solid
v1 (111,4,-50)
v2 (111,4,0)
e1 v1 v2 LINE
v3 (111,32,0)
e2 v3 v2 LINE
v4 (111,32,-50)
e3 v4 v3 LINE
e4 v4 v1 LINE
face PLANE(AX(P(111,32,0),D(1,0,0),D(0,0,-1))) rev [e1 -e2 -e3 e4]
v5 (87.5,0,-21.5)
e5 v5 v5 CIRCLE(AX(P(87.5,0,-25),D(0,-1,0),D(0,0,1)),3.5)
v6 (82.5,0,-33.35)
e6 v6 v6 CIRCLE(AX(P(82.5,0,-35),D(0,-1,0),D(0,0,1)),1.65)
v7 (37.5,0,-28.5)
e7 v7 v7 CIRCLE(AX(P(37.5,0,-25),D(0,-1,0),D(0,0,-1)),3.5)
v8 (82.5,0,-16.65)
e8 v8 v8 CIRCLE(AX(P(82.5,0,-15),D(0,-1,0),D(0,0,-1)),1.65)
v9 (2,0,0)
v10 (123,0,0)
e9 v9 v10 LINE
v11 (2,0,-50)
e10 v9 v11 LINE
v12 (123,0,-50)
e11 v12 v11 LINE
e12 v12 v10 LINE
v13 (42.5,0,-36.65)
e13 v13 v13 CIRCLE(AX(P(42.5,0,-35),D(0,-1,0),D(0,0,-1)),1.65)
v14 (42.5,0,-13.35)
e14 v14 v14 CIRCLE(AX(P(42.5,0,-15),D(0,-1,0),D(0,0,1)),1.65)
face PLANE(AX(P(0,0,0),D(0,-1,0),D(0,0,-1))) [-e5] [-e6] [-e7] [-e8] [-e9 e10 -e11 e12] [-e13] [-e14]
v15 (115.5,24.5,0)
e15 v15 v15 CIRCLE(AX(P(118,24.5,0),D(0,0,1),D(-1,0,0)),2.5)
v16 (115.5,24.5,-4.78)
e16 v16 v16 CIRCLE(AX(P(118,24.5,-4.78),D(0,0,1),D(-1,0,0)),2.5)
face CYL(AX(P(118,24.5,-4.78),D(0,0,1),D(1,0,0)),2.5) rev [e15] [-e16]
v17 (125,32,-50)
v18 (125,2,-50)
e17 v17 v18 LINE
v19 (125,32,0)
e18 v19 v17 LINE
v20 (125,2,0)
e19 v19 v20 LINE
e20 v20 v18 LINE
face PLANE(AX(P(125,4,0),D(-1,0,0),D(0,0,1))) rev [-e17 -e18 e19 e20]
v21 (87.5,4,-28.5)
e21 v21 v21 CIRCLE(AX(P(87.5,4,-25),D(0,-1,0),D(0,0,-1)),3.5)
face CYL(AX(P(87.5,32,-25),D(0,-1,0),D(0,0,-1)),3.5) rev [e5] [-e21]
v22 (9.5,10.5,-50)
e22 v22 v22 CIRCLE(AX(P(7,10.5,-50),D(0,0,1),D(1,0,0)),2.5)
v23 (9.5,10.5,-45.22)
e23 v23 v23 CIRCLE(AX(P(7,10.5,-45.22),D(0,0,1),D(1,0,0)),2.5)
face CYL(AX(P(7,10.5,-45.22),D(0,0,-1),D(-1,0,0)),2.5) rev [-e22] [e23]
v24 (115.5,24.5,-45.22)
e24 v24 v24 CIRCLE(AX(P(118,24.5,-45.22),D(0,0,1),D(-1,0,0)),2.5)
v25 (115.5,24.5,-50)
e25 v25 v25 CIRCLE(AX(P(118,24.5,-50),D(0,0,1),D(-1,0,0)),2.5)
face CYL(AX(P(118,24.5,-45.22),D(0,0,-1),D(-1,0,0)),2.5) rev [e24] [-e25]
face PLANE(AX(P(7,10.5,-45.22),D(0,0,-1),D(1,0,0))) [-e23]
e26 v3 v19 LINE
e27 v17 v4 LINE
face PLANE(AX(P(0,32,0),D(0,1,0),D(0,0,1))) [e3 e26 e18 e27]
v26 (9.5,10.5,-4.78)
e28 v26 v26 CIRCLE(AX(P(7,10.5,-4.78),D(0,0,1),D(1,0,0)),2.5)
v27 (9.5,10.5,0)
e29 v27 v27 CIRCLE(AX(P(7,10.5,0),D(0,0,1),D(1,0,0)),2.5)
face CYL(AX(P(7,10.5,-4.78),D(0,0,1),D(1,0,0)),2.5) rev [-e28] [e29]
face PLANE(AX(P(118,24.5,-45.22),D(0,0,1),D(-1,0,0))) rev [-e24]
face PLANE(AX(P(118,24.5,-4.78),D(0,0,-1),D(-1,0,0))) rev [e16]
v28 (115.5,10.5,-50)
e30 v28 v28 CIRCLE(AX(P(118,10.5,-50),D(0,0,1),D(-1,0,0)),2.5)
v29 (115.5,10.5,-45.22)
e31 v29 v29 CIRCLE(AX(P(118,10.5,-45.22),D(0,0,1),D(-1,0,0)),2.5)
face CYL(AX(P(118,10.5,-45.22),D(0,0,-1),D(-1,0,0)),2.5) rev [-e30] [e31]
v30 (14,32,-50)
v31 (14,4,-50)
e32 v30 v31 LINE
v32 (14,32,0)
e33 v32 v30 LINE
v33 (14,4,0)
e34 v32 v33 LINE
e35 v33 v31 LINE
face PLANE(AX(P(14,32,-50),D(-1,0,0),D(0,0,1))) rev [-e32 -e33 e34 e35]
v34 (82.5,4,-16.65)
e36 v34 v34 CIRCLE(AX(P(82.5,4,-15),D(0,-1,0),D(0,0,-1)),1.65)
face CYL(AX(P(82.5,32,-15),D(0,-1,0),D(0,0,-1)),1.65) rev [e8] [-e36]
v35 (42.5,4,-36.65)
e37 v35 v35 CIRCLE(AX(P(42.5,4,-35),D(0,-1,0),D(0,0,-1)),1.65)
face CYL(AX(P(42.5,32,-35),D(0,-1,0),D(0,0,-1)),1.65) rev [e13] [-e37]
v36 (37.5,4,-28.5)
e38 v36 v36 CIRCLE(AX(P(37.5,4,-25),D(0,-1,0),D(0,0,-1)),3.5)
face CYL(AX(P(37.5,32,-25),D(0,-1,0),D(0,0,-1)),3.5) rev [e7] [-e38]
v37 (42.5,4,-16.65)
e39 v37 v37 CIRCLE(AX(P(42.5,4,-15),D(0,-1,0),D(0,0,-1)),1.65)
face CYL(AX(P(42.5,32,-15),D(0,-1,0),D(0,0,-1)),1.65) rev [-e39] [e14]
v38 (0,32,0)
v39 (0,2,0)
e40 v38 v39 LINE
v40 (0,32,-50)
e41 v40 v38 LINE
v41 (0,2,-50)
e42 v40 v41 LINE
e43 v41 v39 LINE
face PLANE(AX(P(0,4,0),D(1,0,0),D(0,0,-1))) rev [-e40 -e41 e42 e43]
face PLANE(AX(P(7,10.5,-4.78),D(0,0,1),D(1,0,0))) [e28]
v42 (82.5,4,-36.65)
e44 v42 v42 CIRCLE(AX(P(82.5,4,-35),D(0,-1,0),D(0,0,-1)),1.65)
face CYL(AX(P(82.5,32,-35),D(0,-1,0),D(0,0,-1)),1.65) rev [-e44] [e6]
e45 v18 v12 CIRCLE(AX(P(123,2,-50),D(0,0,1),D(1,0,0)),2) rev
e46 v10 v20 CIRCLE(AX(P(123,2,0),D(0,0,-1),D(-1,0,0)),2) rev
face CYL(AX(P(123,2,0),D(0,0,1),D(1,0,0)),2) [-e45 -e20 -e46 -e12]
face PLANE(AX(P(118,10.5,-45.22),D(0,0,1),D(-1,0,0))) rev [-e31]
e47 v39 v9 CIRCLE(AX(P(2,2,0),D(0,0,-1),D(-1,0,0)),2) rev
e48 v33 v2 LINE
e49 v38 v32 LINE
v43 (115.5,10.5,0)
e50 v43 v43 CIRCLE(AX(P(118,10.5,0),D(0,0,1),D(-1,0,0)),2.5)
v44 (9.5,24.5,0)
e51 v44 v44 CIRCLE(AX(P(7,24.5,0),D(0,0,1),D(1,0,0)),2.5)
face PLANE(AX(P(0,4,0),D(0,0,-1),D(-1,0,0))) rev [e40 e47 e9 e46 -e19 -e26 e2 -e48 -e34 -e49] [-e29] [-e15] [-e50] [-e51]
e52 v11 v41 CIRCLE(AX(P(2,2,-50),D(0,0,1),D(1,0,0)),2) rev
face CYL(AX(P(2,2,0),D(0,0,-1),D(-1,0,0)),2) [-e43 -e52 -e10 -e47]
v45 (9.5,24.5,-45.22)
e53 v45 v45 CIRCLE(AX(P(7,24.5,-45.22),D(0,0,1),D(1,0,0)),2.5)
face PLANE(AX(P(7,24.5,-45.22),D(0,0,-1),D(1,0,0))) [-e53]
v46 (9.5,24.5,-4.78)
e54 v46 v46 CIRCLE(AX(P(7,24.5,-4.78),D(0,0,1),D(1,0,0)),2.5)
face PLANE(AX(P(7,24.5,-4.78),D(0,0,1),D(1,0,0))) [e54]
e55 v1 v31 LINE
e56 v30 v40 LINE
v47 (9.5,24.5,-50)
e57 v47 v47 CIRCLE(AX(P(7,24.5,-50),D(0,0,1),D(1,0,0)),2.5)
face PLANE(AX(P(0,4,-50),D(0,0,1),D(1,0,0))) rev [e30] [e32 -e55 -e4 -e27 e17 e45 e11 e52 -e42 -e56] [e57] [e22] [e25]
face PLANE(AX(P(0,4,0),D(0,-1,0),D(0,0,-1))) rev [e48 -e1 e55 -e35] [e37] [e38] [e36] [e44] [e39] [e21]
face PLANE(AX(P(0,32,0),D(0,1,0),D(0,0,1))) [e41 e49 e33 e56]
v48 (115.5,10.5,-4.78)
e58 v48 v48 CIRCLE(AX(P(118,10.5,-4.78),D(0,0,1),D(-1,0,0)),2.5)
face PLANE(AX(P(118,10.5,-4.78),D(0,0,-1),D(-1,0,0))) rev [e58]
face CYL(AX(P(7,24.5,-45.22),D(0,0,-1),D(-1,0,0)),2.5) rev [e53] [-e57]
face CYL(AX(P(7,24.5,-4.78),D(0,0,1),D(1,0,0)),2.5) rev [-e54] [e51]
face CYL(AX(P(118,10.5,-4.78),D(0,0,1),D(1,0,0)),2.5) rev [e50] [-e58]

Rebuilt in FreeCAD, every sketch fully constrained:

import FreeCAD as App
import Part
import Sketcher
from FreeCAD import Vector


def edges_at(feature, points):
    """Names of the edges that pass closest to the given points."""
    edges = feature.Shape.Edges
    near = lambda p: min(range(len(edges)), key=lambda i: edges[i].distToShape(Part.Vertex(*p))[0])
    return sorted({f"Edge{near(p) + 1}" for p in points})


def add_polygon(sketch, points):
    """Adds a closed chain of lines whose ends are joined by coincident constraints."""
    first, n = sketch.GeometryCount, len(points)
    for a, b in zip(points, points[1:] + points[:1]):
        sketch.addGeometry(Part.LineSegment(App.Vector(*a, 0), App.Vector(*b, 0)), False)
    for i in range(n):
        sketch.addConstraint(Sketcher.Constraint("Coincident", first + i, 2, first + (i + 1) % n, 1))

doc = App.newDocument("Part")
params = doc.addObject("Spreadsheet::Sheet", "Params")
for row, (alias, value) in enumerate([
    ("sketch1_width", "125 mm"),
    ("sketch1_height", "50 mm"),
    ("pad1_length", "4 mm"),
    ("sketch2_width", "14 mm"),
    ("sketch2_height", "50 mm"),
    ("pad2_length", "28 mm"),
    ("sketch3_diameter", "5 mm"),
    ("pocket1_length", "4.78 mm"),
    ("sketch4_diameter", "7 mm"),
    ("sketch4_diameter2", "3.3 mm"),
    ("fillet_radius", "2 mm"),
], start=1):
    params.set(f"A{row}", alias)
    params.set(f"B{row}", "=" + value)
    params.setAlias(f"B{row}", alias)

body = doc.addObject("PartDesign::Body", "Body")

# Sketch on XZ plane
sketch1 = doc.addObject("Sketcher::SketchObject", "Sketch")
body.addObject(sketch1)
sketch1.AttachmentSupport = (doc.XZ_Plane, [""])
sketch1.MapMode = "FlatFace"
add_polygon(sketch1, [(0, -50), (0, 0), (125, 0), (125, -50)])  # lines 0-3
sketch1.addConstraint([
    Sketcher.Constraint("Vertical", 0),
    Sketcher.Constraint("Horizontal", 1),
    Sketcher.Constraint("Vertical", 2),
    Sketcher.Constraint("Horizontal", 3),
    Sketcher.Constraint("Coincident", 0, 2, -1, 1),
    Sketcher.Constraint("DistanceX", 1, 1, 1, 2, 125.0),
    Sketcher.Constraint("DistanceY", 0, 1, 0, 2, 50.0),
])
sketch1.setExpression("Constraints[9]", "Params.sketch1_width")
sketch1.setExpression("Constraints[10]", "Params.sketch1_height")
pad1 = doc.addObject("PartDesign::Pad", "Pad")
body.addObject(pad1)
pad1.Profile = sketch1
pad1.setExpression("Length", "Params.pad1_length")
pad1.Reversed = True

# Sketch on XZ plane
sketch2 = doc.addObject("Sketcher::SketchObject", "Sketch001")
body.addObject(sketch2)
sketch2.AttachmentSupport = (doc.XZ_Plane, [""])
sketch2.MapMode = "FlatFace"
sketch2.AttachmentOffset = App.Placement(Vector(0, 0, -4), App.Rotation())
add_polygon(sketch2, [(0, -50), (0, 0), (14, 0), (14, -50)])  # lines 0-3
add_polygon(sketch2, [(111, -50), (111, 0), (125, 0), (125, -50)])  # lines 4-7
sketch2.addConstraint([
    Sketcher.Constraint("Vertical", 0),
    Sketcher.Constraint("Horizontal", 1),
    Sketcher.Constraint("Vertical", 2),
    Sketcher.Constraint("Horizontal", 3),
    Sketcher.Constraint("Vertical", 4),
    Sketcher.Constraint("Horizontal", 5),
    Sketcher.Constraint("Vertical", 6),
    Sketcher.Constraint("Horizontal", 7),
    Sketcher.Constraint("Coincident", 0, 2, -1, 1),
    Sketcher.Constraint("PointOnObject", 4, 2, -1),
    Sketcher.Constraint("Horizontal", 3, 2, 6, 2),
    Sketcher.Constraint("Equal", 3, 5),
    Sketcher.Constraint("DistanceX", 1, 1, 1, 2, 14.0),
    Sketcher.Constraint("DistanceY", 0, 1, 0, 2, 50.0),
    Sketcher.Constraint("DistanceX", -1, 1, 4, 2, 111.0),
])
sketch2.setExpression("Constraints[20]", "Params.sketch2_width")
sketch2.setExpression("Constraints[21]", "Params.sketch2_height")
pad2 = doc.addObject("PartDesign::Pad", "Pad001")
body.addObject(pad2)
pad2.Profile = sketch2
pad2.setExpression("Length", "Params.pad2_length")
pad2.Reversed = True

# Sketch on XY plane
sketch3 = doc.addObject("Sketcher::SketchObject", "Sketch002")
body.addObject(sketch3)
sketch3.AttachmentSupport = (doc.XY_Plane, [""])
sketch3.MapMode = "FlatFace"
sketch3.addGeometry([
    Part.Circle(Vector(7, 24.5, 0), Vector(0, 0, 1), 2.5),
    Part.Circle(Vector(7, 10.5, 0), Vector(0, 0, 1), 2.5),
    Part.Circle(Vector(118, 10.5, 0), Vector(0, 0, 1), 2.5),
    Part.Circle(Vector(118, 24.5, 0), Vector(0, 0, 1), 2.5),
], False)
sketch3.addConstraint([
    Sketcher.Constraint("Equal", 0, 1),
    Sketcher.Constraint("Equal", 1, 2),
    Sketcher.Constraint("Equal", 2, 3),
    Sketcher.Constraint("Horizontal", 1, 3, 2, 3),
    Sketcher.Constraint("Horizontal", 0, 3, 3, 3),
    Sketcher.Constraint("Vertical", 0, 3, 1, 3),
    Sketcher.Constraint("Vertical", 2, 3, 3, 3),
    Sketcher.Constraint("Diameter", 0, 5.0),
    Sketcher.Constraint("DistanceX", -1, 1, 0, 3, 7.0),
    Sketcher.Constraint("DistanceX", -1, 1, 2, 3, 118.0),
    Sketcher.Constraint("DistanceY", 1, 3, 0, 3, 14.0),
    Sketcher.Constraint("DistanceY", -1, 1, 0, 3, 24.5),
])
sketch3.setExpression("Constraints[7]", "Params.sketch3_diameter")
pocket1 = doc.addObject("PartDesign::Pocket", "Pocket")
body.addObject(pocket1)
pocket1.Profile = sketch3
pocket1.setExpression("Length", "Params.pocket1_length")
doc.recompute()

datumplane = doc.addObject("PartDesign::Plane", "DatumPlane")
body.addObject(datumplane)
datumplane.AttachmentSupport = (doc.XY_Plane, [""])
datumplane.MapMode = "FlatFace"
datumplane.AttachmentOffset = App.Placement(Vector(0, 0, -25), App.Rotation())
mirrored = doc.addObject("PartDesign::Mirrored", "Mirrored")
body.addObject(mirrored)
mirrored.Originals = [pocket1]
mirrored.MirrorPlane = (datumplane, [""])
body.Tip = mirrored

# Sketch on XZ plane
sketch4 = doc.addObject("Sketcher::SketchObject", "Sketch003")
body.addObject(sketch4)
sketch4.AttachmentSupport = (doc.XZ_Plane, [""])
sketch4.MapMode = "FlatFace"
sketch4.addGeometry([
    Part.Circle(Vector(82.5, -15, 0), Vector(0, 0, 1), 1.6),  # 0
    Part.Circle(Vector(42.5, -15, 0), Vector(0, 0, 1), 1.6),  # 1
    Part.Circle(Vector(82.5, -35, 0), Vector(0, 0, 1), 1.6),  # 2
    Part.Circle(Vector(42.5, -35, 0), Vector(0, 0, 1), 1.6),  # 3
    Part.Circle(Vector(37.5, -25, 0), Vector(0, 0, 1), 3.5),  # 4
    Part.Circle(Vector(87.5, -25, 0), Vector(0, 0, 1), 3.5),  # 5
], False)
sketch4.addConstraint([
    Sketcher.Constraint("Equal", 0, 1),
    Sketcher.Constraint("Equal", 1, 2),
    Sketcher.Constraint("Equal", 2, 3),
    Sketcher.Constraint("Equal", 4, 5),
    Sketcher.Constraint("Horizontal", 0, 3, 1, 3),
    Sketcher.Constraint("Horizontal", 2, 3, 3, 3),
    Sketcher.Constraint("Horizontal", 4, 3, 5, 3),
    Sketcher.Constraint("Vertical", 0, 3, 2, 3),
    Sketcher.Constraint("Vertical", 1, 3, 3, 3),
    Sketcher.Constraint("Diameter", 4, 7.0),
    Sketcher.Constraint("Diameter", 0, 3.3),
    Sketcher.Constraint("DistanceY", 0, 3, -1, 1, 15.0),
    Sketcher.Constraint("DistanceY", 2, 3, -1, 1, 35.0),
    Sketcher.Constraint("DistanceY", 4, 3, -1, 1, 25.0),
    Sketcher.Constraint("DistanceX", 1, 3, 0, 3, 40.0),
    Sketcher.Constraint("DistanceX", 4, 3, 1, 3, 5.0),
    Sketcher.Constraint("DistanceX", 0, 3, 5, 3, 5.0),
    Sketcher.Constraint("DistanceX", -1, 1, 0, 3, 82.5),
])
sketch4.setExpression("Constraints[9]", "Params.sketch4_diameter")
sketch4.setExpression("Constraints[10]", "Params.sketch4_diameter2")
pocket2 = doc.addObject("PartDesign::Pocket", "Pocket001")
body.addObject(pocket2)
pocket2.Profile = sketch4
pocket2.Type = "ThroughAll"
doc.recompute()

fillet = doc.addObject("PartDesign::Fillet", "Fillet")
body.addObject(fillet)
fillet.Base = (pocket2, edges_at(pocket2, [(125, 0, -25), (0, 0, -25)]))
fillet.setExpression("Radius", "Params.fillet_radius")

doc.recompute()
